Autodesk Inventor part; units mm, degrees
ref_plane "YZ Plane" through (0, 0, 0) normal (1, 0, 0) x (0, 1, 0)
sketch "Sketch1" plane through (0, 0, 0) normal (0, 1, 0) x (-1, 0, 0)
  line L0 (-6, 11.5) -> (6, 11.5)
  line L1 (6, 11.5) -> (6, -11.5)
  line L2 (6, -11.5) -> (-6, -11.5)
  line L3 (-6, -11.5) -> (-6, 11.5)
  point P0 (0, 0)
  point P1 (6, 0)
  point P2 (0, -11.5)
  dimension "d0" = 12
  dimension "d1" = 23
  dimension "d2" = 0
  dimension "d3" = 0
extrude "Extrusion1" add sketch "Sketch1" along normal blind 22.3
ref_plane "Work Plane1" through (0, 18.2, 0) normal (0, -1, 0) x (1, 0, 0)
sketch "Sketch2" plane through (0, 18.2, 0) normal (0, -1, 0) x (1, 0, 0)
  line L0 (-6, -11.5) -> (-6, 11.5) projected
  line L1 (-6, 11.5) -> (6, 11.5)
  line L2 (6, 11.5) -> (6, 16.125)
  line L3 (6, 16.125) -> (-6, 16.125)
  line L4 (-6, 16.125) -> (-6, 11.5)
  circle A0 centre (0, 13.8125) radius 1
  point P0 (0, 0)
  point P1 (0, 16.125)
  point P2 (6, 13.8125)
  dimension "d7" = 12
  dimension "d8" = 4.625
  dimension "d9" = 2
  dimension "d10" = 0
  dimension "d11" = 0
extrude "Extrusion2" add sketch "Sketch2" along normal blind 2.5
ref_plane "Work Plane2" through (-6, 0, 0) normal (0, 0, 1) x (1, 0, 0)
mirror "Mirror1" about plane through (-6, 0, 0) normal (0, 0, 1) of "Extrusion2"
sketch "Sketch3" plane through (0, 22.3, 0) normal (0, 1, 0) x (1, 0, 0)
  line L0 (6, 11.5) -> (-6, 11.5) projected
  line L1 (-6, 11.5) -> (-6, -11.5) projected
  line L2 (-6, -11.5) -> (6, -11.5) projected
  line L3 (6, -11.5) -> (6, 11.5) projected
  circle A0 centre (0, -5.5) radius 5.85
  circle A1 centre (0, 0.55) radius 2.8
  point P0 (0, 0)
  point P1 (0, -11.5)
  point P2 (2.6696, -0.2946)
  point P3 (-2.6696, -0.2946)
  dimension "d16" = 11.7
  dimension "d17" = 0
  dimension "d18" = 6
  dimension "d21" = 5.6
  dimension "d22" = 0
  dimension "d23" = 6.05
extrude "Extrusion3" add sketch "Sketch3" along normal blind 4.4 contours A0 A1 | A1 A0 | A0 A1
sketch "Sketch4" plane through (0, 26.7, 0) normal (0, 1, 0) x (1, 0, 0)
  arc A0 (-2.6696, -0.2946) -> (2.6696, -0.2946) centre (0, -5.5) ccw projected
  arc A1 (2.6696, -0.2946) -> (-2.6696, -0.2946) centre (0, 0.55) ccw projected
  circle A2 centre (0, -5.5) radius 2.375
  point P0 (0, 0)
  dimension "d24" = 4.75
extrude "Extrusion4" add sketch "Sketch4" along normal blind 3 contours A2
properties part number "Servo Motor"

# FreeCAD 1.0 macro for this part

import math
import FreeCAD as App
import Part
import Sketcher
from FreeCAD import Vector

doc = App.newDocument("Part")
body = doc.addObject("PartDesign::Body", "Body")

sketch1 = body.newObject("Sketcher::SketchObject", "Sketch")
sketch1.AttachmentSupport = (doc.getObject("XZ_Plane"), [""])
sketch1.MapMode = "FlatFace"
sketch1.addGeometry(Part.LineSegment(Vector(-6, 11.5, 0), Vector(6, 11.5, 0)), False)
sketch1.addGeometry(Part.LineSegment(Vector(6, 11.5, 0), Vector(6, -11.5, 0)), False)
sketch1.addGeometry(Part.LineSegment(Vector(6, -11.5, 0), Vector(-6, -11.5, 0)), False)
sketch1.addGeometry(Part.LineSegment(Vector(-6, -11.5, 0), Vector(-6, 11.5, 0)), False)
sketch1.addConstraint(Sketcher.Constraint("Coincident", 0, 2, 1, 1))
sketch1.addConstraint(Sketcher.Constraint("Coincident", 1, 2, 2, 1))
sketch1.addConstraint(Sketcher.Constraint("Coincident", 2, 2, 3, 1))
sketch1.addConstraint(Sketcher.Constraint("Coincident", 3, 2, 0, 1))
sketch1.addConstraint(Sketcher.Constraint("Horizontal", 0))
sketch1.addConstraint(Sketcher.Constraint("Vertical", 1))
sketch1.addConstraint(Sketcher.Constraint("Horizontal", 2))
sketch1.addConstraint(Sketcher.Constraint("Vertical", 3))
sketch1.addConstraint(Sketcher.Constraint("Symmetric", 0, 2, 2, 2, -1, 1))
sketch1.addConstraint(Sketcher.Constraint("DistanceX", 0, 1, 0, 2, 12.0))
sketch1.addConstraint(Sketcher.Constraint("DistanceY", 1, 2, 1, 1, 23.0))
pad1 = body.newObject("PartDesign::Pad", "Pad")
pad1.Profile = sketch1
pad1.Length = 22.3
pad1.Reversed = True

sketch2 = body.newObject("Sketcher::SketchObject", "Sketch001")
sketch2.AttachmentSupport = (doc.getObject("XZ_Plane"), [""])
sketch2.MapMode = "FlatFace"
sketch2.AttachmentOffset = App.Placement(Vector(0, 0, -18.2), App.Rotation())
sketch2.addGeometry(Part.LineSegment(Vector(-6, 16.125, 0), Vector(-6, 11.5, 0)), False)
sketch2.addGeometry(Part.LineSegment(Vector(-6, 11.5, 0), Vector(6, 11.5, 0)), False)
sketch2.addGeometry(Part.LineSegment(Vector(6, 11.5, 0), Vector(6, 16.125, 0)), False)
sketch2.addGeometry(Part.LineSegment(Vector(6, 16.125, 0), Vector(-6, 16.125, 0)), False)
sketch2.addGeometry(Part.Circle(Vector(0, 13.8125, 0), Vector(0, 0, 1), 1), False)
sketch2.addConstraint(Sketcher.Constraint("Coincident", 0, 2, 1, 1))
sketch2.addConstraint(Sketcher.Constraint("Coincident", 1, 2, 2, 1))
sketch2.addConstraint(Sketcher.Constraint("Coincident", 2, 2, 3, 1))
sketch2.addConstraint(Sketcher.Constraint("Coincident", 3, 2, 0, 1))
sketch2.addConstraint(Sketcher.Constraint("Vertical", 0))
sketch2.addConstraint(Sketcher.Constraint("Horizontal", 1))
sketch2.addConstraint(Sketcher.Constraint("Vertical", 2))
sketch2.addConstraint(Sketcher.Constraint("Horizontal", 3))
sketch2.addConstraint(Sketcher.Constraint("PointOnObject", 4, 3, -2))
sketch2.addConstraint(Sketcher.Constraint("Diameter", 4, 2.0))
sketch2.addConstraint(Sketcher.Constraint("DistanceX", 1, 1, 1, 2, 12.0))
sketch2.addConstraint(Sketcher.Constraint("DistanceY", 0, 2, 0, 1, 4.625))
sketch2.addConstraint(Sketcher.Constraint("DistanceX", 0, 2, -1, 1, 6.0))
sketch2.addConstraint(Sketcher.Constraint("DistanceY", -1, 1, 0, 2, 11.5))
sketch2.addConstraint(Sketcher.Constraint("DistanceY", -1, 1, 4, 3, 13.8125))
pad2 = body.newObject("PartDesign::Pad", "Pad001")
pad2.Profile = sketch2
pad2.Length = 2.5
doc.recompute()

mirrored = body.newObject("PartDesign::Mirrored", "Mirrored")
mirrored.Originals = [pad2]
mirrored.MirrorPlane = (doc.getObject("XY_Plane"), [""])
body.Tip = mirrored

sketch3 = body.newObject("Sketcher::SketchObject", "Sketch002")
sketch3.AttachmentSupport = (doc.getObject("XZ_Plane"), [""])
sketch3.MapMode = "FlatFace"
sketch3.AttachmentOffset = App.Placement(Vector(0, 0, -22.3), App.Rotation())
sketch3.addGeometry(Part.ArcOfCircle(Part.Circle(Vector(0, 5.5, 0), Vector(0, 0, 1), 5.85), math.radians(-62.849025), math.radians(242.849025)), False)
sketch3.addGeometry(Part.ArcOfCircle(Part.Circle(Vector(0, -0.55, 0), Vector(0, 0, 1), 2.8), math.radians(162.443093), math.radians(377.556907)), False)
sketch3.addConstraint(Sketcher.Constraint("Coincident", 0, 1, 1, 2))
sketch3.addConstraint(Sketcher.Constraint("Coincident", 1, 1, 0, 2))
sketch3.addConstraint(Sketcher.Constraint("Symmetric", 0, 1, 1, 1, -2))
sketch3.addConstraint(Sketcher.Constraint("Radius", 1, 2.8))
sketch3.addConstraint(Sketcher.Constraint("Radius", 0, 5.85))
sketch3.addConstraint(Sketcher.Constraint("DistanceY", 1, 3, 0, 3, 6.05))
sketch3.addConstraint(Sketcher.Constraint("DistanceY", -1, 1, 0, 3, 5.5))
pad3 = body.newObject("PartDesign::Pad", "Pad002")
pad3.Profile = sketch3
pad3.Length = 4.4
pad3.Reversed = True

sketch4 = body.newObject("Sketcher::SketchObject", "Sketch003")
sketch4.AttachmentSupport = (doc.getObject("XZ_Plane"), [""])
sketch4.MapMode = "FlatFace"
sketch4.AttachmentOffset = App.Placement(Vector(0, 0, -26.7), App.Rotation())
sketch4.addGeometry(Part.Circle(Vector(0, 5.5, 0), Vector(0, 0, 1), 2.375), False)
sketch4.addConstraint(Sketcher.Constraint("PointOnObject", 0, 3, -2))
sketch4.addConstraint(Sketcher.Constraint("Diameter", 0, 4.75))
sketch4.addConstraint(Sketcher.Constraint("DistanceY", -1, 1, 0, 3, 5.5))
pad4 = body.newObject("PartDesign::Pad", "Pad003")
pad4.Profile = sketch4
pad4.Length = 3
pad4.Reversed = True

doc.recompute()
